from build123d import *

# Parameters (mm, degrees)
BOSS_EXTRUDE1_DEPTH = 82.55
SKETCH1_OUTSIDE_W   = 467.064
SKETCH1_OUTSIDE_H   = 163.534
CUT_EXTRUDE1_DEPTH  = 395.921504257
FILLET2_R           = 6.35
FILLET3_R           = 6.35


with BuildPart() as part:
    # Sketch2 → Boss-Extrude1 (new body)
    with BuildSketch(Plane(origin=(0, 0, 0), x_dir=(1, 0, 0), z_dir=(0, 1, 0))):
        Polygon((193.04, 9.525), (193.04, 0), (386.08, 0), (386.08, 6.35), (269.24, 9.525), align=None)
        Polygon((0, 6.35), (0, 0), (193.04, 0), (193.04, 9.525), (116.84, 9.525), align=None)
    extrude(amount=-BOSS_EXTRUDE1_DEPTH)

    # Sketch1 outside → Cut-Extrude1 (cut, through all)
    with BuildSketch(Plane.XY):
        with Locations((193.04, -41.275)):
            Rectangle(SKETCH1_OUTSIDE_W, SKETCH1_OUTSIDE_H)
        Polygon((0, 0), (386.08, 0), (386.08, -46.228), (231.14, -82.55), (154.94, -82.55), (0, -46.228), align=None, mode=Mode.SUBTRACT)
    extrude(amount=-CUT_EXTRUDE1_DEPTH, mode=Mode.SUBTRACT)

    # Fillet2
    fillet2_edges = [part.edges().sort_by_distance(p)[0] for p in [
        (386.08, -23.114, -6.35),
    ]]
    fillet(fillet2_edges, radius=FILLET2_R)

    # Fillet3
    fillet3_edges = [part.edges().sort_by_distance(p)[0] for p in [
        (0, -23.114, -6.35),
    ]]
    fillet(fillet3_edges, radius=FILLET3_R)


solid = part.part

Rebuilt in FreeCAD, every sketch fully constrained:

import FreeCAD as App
import Part
import Sketcher
from FreeCAD import Vector
Q = App.Units.Quantity


def edges_at(feature, points):
    """Names of the edges that pass closest to the given points."""
    edges = feature.Shape.Edges
    near = lambda p: min(range(len(edges)), key=lambda i: edges[i].distToShape(Part.Vertex(*p))[0])
    return sorted({f"Edge{near(p) + 1}" for p in points})


def add_polygon(sketch, points):
    """Adds a closed chain of lines whose ends are joined by coincident constraints."""
    first, n = sketch.GeometryCount, len(points)
    for a, b in zip(points, points[1:] + points[:1]):
        sketch.addGeometry(Part.LineSegment(App.Vector(*a, 0), App.Vector(*b, 0)), False)
    for i in range(n):
        sketch.addConstraint(Sketcher.Constraint("Coincident", first + i, 2, first + (i + 1) % n, 1))

doc = App.newDocument("Part")
body = doc.addObject("PartDesign::Body", "Body")

# Sketch on XZ plane
sketch1 = body.newObject("Sketcher::SketchObject", "Sketch")
sketch1.AttachmentSupport = (doc.getObject("XZ_Plane"), [""])
sketch1.MapMode = "FlatFace"
add_polygon(sketch1, [(386, 0), (386, -6), (269, -10), (117, -10), (0, -6), (0, 0)])  # lines 0-5
sketch1.addConstraint([
    Sketcher.Constraint("Vertical", 0),
    Sketcher.Constraint("Horizontal", 2),
    Sketcher.Constraint("Vertical", 4),
    Sketcher.Constraint("Horizontal", 5),
    Sketcher.Constraint("Coincident", 4, 2, -1, 1),
    Sketcher.Constraint("Horizontal", 0, 2, 3, 2),
    Sketcher.Constraint("Equal", 1, 3),
    Sketcher.Constraint("DistanceX", 2, 2, 2, 1, Q("6 in")),
    Sketcher.Constraint("DistanceX", 5, 1, 5, 2, Q("15.2 in")),
    Sketcher.Constraint("DistanceY", 0, 2, 0, 1, Q("0.25 in")),
    Sketcher.Constraint("DistanceY", 1, 2, -1, 1, Q("0.375 in")),
])
pad1 = body.newObject("PartDesign::Pad", "Pad")
pad1.Profile = sketch1
pad1.Length = Q("3.25 in")

# Sketch on XY plane
sketch2 = body.newObject("Sketcher::SketchObject", "Sketch001")
sketch2.AttachmentSupport = (doc.getObject("XY_Plane"), [""])
sketch2.MapMode = "FlatFace"
add_polygon(sketch2, [(-40, 40), (-40, -123), (427, -123), (427, 40)])  # lines 0-3
add_polygon(sketch2, [(0, -46), (0, 0), (386, 0), (386, -46), (231, -83), (155, -83)])  # lines 4-9
sketch2.addConstraint([
    Sketcher.Constraint("Vertical", 0),
    Sketcher.Constraint("Horizontal", 1),
    Sketcher.Constraint("Vertical", 2),
    Sketcher.Constraint("Horizontal", 3),
    Sketcher.Constraint("Vertical", 4),
    Sketcher.Constraint("Horizontal", 5),
    Sketcher.Constraint("Vertical", 6),
    Sketcher.Constraint("Horizontal", 8),
    Sketcher.Constraint("Coincident", 4, 2, -1, 1),
    Sketcher.Constraint("Horizontal", 6, 2, 9, 2),
    Sketcher.Constraint("Equal", 7, 9),
    Sketcher.Constraint("DistanceX", 8, 2, 8, 1, Q("3 in")),
    Sketcher.Constraint("DistanceX", 5, 1, 5, 2, Q("15.2 in")),
    Sketcher.Constraint("DistanceY", 4, 1, 4, 2, Q("1.82 in")),
    Sketcher.Constraint("DistanceY", 7, 2, -1, 1, Q("3.25 in")),
    Sketcher.Constraint("DistanceX", 1, 1, 1, 2, 467.064),
    Sketcher.Constraint("DistanceY", 0, 2, 0, 1, 163.534),
    Sketcher.Constraint("DistanceX", 0, 2, -1, 1, 40.492),
    Sketcher.Constraint("DistanceY", 0, 2, -1, 1, 123.042),
])
pocket1 = body.newObject("PartDesign::Pocket", "Pocket")
pocket1.Profile = sketch2
pocket1.Type = "ThroughAll"
doc.recompute()

fillet = body.newObject("PartDesign::Fillet", "Fillet")
fillet.Base = (pocket1, edges_at(pocket1, [(386.08, -23.114, -6.35)]))
fillet.Radius = Q("0.25 in")
doc.recompute()

fillet2 = body.newObject("PartDesign::Fillet", "Fillet001")
fillet2.Base = (fillet, edges_at(fillet, [(0, -23.114, -6.35)]))
fillet2.Radius = Q("0.25 in")

doc.recompute()
